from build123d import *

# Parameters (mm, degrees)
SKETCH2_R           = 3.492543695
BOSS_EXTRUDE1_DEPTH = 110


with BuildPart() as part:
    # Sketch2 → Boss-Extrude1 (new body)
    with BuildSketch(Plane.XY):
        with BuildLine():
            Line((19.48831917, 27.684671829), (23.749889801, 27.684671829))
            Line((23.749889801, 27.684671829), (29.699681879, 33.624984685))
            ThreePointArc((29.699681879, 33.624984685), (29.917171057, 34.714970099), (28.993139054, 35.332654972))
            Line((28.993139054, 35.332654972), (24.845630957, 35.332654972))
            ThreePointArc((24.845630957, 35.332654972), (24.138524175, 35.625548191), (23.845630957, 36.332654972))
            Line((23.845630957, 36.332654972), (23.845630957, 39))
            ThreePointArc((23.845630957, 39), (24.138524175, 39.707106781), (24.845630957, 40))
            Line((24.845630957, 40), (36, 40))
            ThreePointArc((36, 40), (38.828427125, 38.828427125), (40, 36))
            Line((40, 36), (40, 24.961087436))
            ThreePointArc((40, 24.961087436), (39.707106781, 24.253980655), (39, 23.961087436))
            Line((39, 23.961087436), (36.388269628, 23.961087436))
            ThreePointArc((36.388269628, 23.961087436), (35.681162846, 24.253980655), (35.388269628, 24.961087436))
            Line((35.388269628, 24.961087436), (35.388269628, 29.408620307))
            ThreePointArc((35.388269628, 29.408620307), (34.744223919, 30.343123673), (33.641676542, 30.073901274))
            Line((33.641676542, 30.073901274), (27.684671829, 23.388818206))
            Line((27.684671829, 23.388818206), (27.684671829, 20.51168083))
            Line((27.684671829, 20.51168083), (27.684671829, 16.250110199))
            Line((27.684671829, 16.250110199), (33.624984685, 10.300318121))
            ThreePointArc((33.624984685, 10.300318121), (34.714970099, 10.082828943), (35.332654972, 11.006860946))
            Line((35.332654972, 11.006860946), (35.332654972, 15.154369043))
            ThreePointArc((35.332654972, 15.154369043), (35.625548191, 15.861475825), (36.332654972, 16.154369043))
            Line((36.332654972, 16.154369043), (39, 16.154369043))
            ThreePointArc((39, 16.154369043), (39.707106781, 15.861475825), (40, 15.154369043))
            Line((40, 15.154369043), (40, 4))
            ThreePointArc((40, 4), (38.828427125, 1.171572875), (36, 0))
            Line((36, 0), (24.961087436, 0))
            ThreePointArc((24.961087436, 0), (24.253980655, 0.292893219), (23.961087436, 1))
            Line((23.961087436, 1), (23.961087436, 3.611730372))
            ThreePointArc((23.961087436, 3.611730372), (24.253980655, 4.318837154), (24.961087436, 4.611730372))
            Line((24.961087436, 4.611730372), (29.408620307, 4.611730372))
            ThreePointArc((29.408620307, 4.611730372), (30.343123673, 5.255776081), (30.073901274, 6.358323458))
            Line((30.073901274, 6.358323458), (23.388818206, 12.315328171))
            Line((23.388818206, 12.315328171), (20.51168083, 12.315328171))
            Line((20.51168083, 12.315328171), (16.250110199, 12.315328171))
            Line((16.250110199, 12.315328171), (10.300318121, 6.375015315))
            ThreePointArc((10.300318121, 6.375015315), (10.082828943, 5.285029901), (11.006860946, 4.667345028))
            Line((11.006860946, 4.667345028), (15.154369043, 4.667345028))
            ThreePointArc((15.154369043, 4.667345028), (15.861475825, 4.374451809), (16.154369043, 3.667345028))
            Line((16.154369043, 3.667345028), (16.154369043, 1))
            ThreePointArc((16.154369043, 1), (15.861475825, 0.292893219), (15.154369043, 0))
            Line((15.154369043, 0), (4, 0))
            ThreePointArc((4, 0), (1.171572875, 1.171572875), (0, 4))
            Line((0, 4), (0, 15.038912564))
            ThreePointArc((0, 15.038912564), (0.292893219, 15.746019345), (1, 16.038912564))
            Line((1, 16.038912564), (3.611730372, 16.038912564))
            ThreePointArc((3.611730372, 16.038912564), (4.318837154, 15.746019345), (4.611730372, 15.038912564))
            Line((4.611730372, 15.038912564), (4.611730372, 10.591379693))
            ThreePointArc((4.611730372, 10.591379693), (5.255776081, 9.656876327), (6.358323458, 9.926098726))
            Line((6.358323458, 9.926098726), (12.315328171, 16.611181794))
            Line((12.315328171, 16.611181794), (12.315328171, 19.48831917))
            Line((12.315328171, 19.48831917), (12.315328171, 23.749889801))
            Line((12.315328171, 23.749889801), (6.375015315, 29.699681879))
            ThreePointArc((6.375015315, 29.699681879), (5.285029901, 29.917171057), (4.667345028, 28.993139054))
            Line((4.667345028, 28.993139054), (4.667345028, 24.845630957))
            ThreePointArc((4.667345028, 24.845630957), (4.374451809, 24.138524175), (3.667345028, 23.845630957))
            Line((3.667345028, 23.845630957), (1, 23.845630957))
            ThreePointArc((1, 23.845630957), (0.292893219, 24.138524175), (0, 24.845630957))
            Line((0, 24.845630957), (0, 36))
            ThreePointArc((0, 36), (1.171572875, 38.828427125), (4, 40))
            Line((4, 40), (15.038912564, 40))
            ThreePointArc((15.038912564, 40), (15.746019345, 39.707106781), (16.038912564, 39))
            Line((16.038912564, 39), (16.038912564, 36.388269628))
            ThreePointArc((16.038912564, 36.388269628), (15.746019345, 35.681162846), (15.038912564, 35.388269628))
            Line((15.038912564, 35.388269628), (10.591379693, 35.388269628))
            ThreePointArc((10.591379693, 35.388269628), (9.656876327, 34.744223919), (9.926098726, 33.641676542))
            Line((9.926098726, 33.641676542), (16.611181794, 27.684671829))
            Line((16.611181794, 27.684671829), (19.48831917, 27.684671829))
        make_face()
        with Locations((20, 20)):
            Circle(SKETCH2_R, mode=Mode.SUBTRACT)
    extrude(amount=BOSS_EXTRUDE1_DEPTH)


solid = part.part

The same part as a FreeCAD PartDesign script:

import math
import FreeCAD as App
import Part
import Sketcher

V = App.Vector
Q = App.Units.Quantity

doc = App.newDocument("Part")
params = doc.addObject("Spreadsheet::Sheet", "Params")
for row, (alias, value) in enumerate([
    ("sketch1_radius", "1 mm"),
    ("sketch1_radius2", "4 mm"),
    ("pad1_length", "110 mm"),
], start=1):
    params.set(f"A{row}", alias)
    params.set(f"B{row}", "=" + value)
    params.setAlias(f"B{row}", alias)

body = doc.addObject("PartDesign::Body", "Body")

# Sketch on XY plane
sketch1 = doc.addObject("Sketcher::SketchObject", "Sketch")
body.addObject(sketch1)
sketch1.AttachmentSupport = (doc.XY_Plane, [""])
sketch1.MapMode = "FlatFace"
sketch1.addGeometry([
    Part.LineSegment(V(29.7, 33.6, 0), V(23.7, 27.7, 0)),  # 0
    Part.LineSegment(V(23.7, 27.7, 0), V(16.6, 27.7, 0)),  # 1
    Part.LineSegment(V(16.6, 27.7, 0), V(9.9, 33.6, 0)),  # 2
    Part.ArcOfCircle(Part.Circle(V(10.6, 34.4, 0), V(0, 0, 1), 1), math.radians(90), math.radians(228)),  # 3
    Part.LineSegment(V(10.6, 35.4, 0), V(15, 35.4, 0)),  # 4
    Part.ArcOfCircle(Part.Circle(V(15, 36.4, 0), V(0, 0, 1), 1), math.radians(-90), math.radians(0)),  # 5
    Part.LineSegment(V(16, 36.4, 0), V(16, 39, 0)),  # 6
    Part.ArcOfCircle(Part.Circle(V(15, 39, 0), V(0, 0, 1), 1), math.radians(0), math.radians(90)),  # 7
    Part.LineSegment(V(15, 40, 0), V(4, 40, 0)),  # 8
    Part.ArcOfCircle(Part.Circle(V(4, 36, 0), V(0, 0, 1), 4), math.radians(90), math.radians(180)),  # 9
    Part.LineSegment(V(0, 36, 0), V(0, 24.8, 0)),  # 10
    Part.ArcOfCircle(Part.Circle(V(1, 24.8, 0), V(0, 0, 1), 1), math.radians(180), math.radians(270)),  # 11
    Part.LineSegment(V(1, 23.8, 0), V(3.7, 23.8, 0)),  # 12
    Part.ArcOfCircle(Part.Circle(V(3.7, 24.8, 0), V(0, 0, 1), 1), math.radians(-90), math.radians(0)),  # 13
    Part.LineSegment(V(4.7, 24.8, 0), V(4.7, 29, 0)),  # 14
    Part.ArcOfCircle(Part.Circle(V(5.7, 29, 0), V(0, 0, 1), 1), math.radians(45), math.radians(180)),  # 15
    Part.LineSegment(V(6.4, 29.7, 0), V(12.3, 23.7, 0)),  # 16
    Part.LineSegment(V(12.3, 23.7, 0), V(12.3, 16.6, 0)),  # 17
    Part.LineSegment(V(12.3, 16.6, 0), V(6.4, 9.9, 0)),  # 18
    Part.ArcOfCircle(Part.Circle(V(5.6, 10.6, 0), V(0, 0, 1), 1), math.radians(-180), math.radians(-42)),  # 19
    Part.LineSegment(V(4.6, 10.6, 0), V(4.6, 15, 0)),  # 20
    Part.ArcOfCircle(Part.Circle(V(3.6, 15, 0), V(0, 0, 1), 1), math.radians(0), math.radians(90)),  # 21
    Part.LineSegment(V(3.6, 16, 0), V(1, 16, 0)),  # 22
    Part.ArcOfCircle(Part.Circle(V(1, 15, 0), V(0, 0, 1), 1), math.radians(90), math.radians(180)),  # 23
    Part.LineSegment(V(0, 15, 0), V(0, 4, 0)),  # 24
    Part.ArcOfCircle(Part.Circle(V(4, 4, 0), V(0, 0, 1), 4), math.radians(180), math.radians(270)),  # 25
    Part.LineSegment(V(4, 0, 0), V(15.2, 0, 0)),  # 26
    Part.ArcOfCircle(Part.Circle(V(15.2, 1, 0), V(0, 0, 1), 1), math.radians(-90), math.radians(0)),  # 27
    Part.LineSegment(V(16.2, 1, 0), V(16.2, 3.7, 0)),  # 28
    Part.ArcOfCircle(Part.Circle(V(15.2, 3.7, 0), V(0, 0, 1), 1), math.radians(0), math.radians(90)),  # 29
    Part.LineSegment(V(15.2, 4.7, 0), V(11, 4.7, 0)),  # 30
    Part.ArcOfCircle(Part.Circle(V(11, 5.7, 0), V(0, 0, 1), 1), math.radians(135), math.radians(270)),  # 31
    Part.LineSegment(V(10.3, 6.4, 0), V(16.3, 12.3, 0)),  # 32
    Part.LineSegment(V(16.3, 12.3, 0), V(23.4, 12.3, 0)),  # 33
    Part.LineSegment(V(23.4, 12.3, 0), V(30.1, 6.4, 0)),  # 34
    Part.ArcOfCircle(Part.Circle(V(29.4, 5.6, 0), V(0, 0, 1), 1), math.radians(-90), math.radians(48)),  # 35
    Part.LineSegment(V(29.4, 4.6, 0), V(25, 4.6, 0)),  # 36
    Part.ArcOfCircle(Part.Circle(V(25, 3.6, 0), V(0, 0, 1), 1), math.radians(90), math.radians(180)),  # 37
    Part.LineSegment(V(24, 3.6, 0), V(24, 1, 0)),  # 38
    Part.ArcOfCircle(Part.Circle(V(25, 1, 0), V(0, 0, 1), 1), math.radians(-180), math.radians(-90)),  # 39
    Part.LineSegment(V(25, 0, 0), V(36, 0, 0)),  # 40
    Part.ArcOfCircle(Part.Circle(V(36, 4, 0), V(0, 0, 1), 4), math.radians(-90), math.radians(0)),  # 41
    Part.LineSegment(V(40, 4, 0), V(40, 15.2, 0)),  # 42
    Part.ArcOfCircle(Part.Circle(V(39, 15.2, 0), V(0, 0, 1), 1), math.radians(0), math.radians(90)),  # 43
    Part.LineSegment(V(39, 16.2, 0), V(36.3, 16.2, 0)),  # 44
    Part.ArcOfCircle(Part.Circle(V(36.3, 15.2, 0), V(0, 0, 1), 1), math.radians(90), math.radians(180)),  # 45
    Part.LineSegment(V(35.3, 15.2, 0), V(35.3, 11, 0)),  # 46
    Part.ArcOfCircle(Part.Circle(V(34.3, 11, 0), V(0, 0, 1), 1), math.radians(-135), math.radians(0)),  # 47
    Part.LineSegment(V(33.6, 10.3, 0), V(27.7, 16.3, 0)),  # 48
    Part.LineSegment(V(27.7, 16.3, 0), V(27.7, 23.4, 0)),  # 49
    Part.LineSegment(V(27.7, 23.4, 0), V(33.6, 30.1, 0)),  # 50
    Part.ArcOfCircle(Part.Circle(V(34.4, 29.4, 0), V(0, 0, 1), 1), math.radians(0), math.radians(138)),  # 51
    Part.LineSegment(V(35.4, 29.4, 0), V(35.4, 25, 0)),  # 52
    Part.ArcOfCircle(Part.Circle(V(36.4, 25, 0), V(0, 0, 1), 1), math.radians(180), math.radians(270)),  # 53
    Part.LineSegment(V(36.4, 24, 0), V(39, 24, 0)),  # 54
    Part.ArcOfCircle(Part.Circle(V(39, 25, 0), V(0, 0, 1), 1), math.radians(-90), math.radians(0)),  # 55
    Part.LineSegment(V(40, 25, 0), V(40, 36, 0)),  # 56
    Part.ArcOfCircle(Part.Circle(V(36, 36, 0), V(0, 0, 1), 4), math.radians(0), math.radians(90)),  # 57
    Part.LineSegment(V(36, 40, 0), V(24.8, 40, 0)),  # 58
    Part.ArcOfCircle(Part.Circle(V(24.8, 39, 0), V(0, 0, 1), 1), math.radians(90), math.radians(180)),  # 59
    Part.LineSegment(V(23.8, 39, 0), V(23.8, 36.3, 0)),  # 60
    Part.ArcOfCircle(Part.Circle(V(24.8, 36.3, 0), V(0, 0, 1), 1), math.radians(180), math.radians(270)),  # 61
    Part.LineSegment(V(24.8, 35.3, 0), V(29, 35.3, 0)),  # 62
    Part.ArcOfCircle(Part.Circle(V(29, 34.3, 0), V(0, 0, 1), 1), math.radians(-45), math.radians(90)),  # 63
    Part.Circle(V(20, 20, 0), V(0, 0, 1), 3.5),  # 64
], False)
sketch1.addConstraint([
    Sketcher.Constraint("Coincident", 0, 2, 1, 1),
    Sketcher.Constraint("Coincident", 1, 2, 2, 1),
    Sketcher.Constraint("Tangent", 2, 2, 3, 2),
    Sketcher.Constraint("Tangent", 3, 1, 4, 1),
    Sketcher.Constraint("Tangent", 4, 2, 5, 1),
    Sketcher.Constraint("Tangent", 5, 2, 6, 1),
    Sketcher.Constraint("Tangent", 6, 2, 7, 1),
    Sketcher.Constraint("Tangent", 7, 2, 8, 1),
    Sketcher.Constraint("Tangent", 8, 2, 9, 1),
    Sketcher.Constraint("Tangent", 9, 2, 10, 1),
    Sketcher.Constraint("Tangent", 10, 2, 11, 1),
    Sketcher.Constraint("Tangent", 11, 2, 12, 1),
    Sketcher.Constraint("Tangent", 12, 2, 13, 1),
    Sketcher.Constraint("Tangent", 13, 2, 14, 1),
    Sketcher.Constraint("Tangent", 14, 2, 15, 2),
    Sketcher.Constraint("Tangent", 15, 1, 16, 1),
    Sketcher.Constraint("Coincident", 16, 2, 17, 1),
    Sketcher.Constraint("Coincident", 17, 2, 18, 1),
    Sketcher.Constraint("Tangent", 18, 2, 19, 2),
    Sketcher.Constraint("Tangent", 19, 1, 20, 1),
    Sketcher.Constraint("Tangent", 20, 2, 21, 1),
    Sketcher.Constraint("Tangent", 21, 2, 22, 1),
    Sketcher.Constraint("Tangent", 22, 2, 23, 1),
    Sketcher.Constraint("Tangent", 23, 2, 24, 1),
    Sketcher.Constraint("Tangent", 24, 2, 25, 1),
    Sketcher.Constraint("Tangent", 25, 2, 26, 1),
    Sketcher.Constraint("Tangent", 26, 2, 27, 1),
    Sketcher.Constraint("Tangent", 27, 2, 28, 1),
    Sketcher.Constraint("Tangent", 28, 2, 29, 1),
    Sketcher.Constraint("Tangent", 29, 2, 30, 1),
    Sketcher.Constraint("Tangent", 30, 2, 31, 2),
    Sketcher.Constraint("Tangent", 31, 1, 32, 1),
    Sketcher.Constraint("Coincident", 32, 2, 33, 1),
    Sketcher.Constraint("Coincident", 33, 2, 34, 1),
    Sketcher.Constraint("Tangent", 34, 2, 35, 2),
    Sketcher.Constraint("Tangent", 35, 1, 36, 1),
    Sketcher.Constraint("Tangent", 36, 2, 37, 1),
    Sketcher.Constraint("Tangent", 37, 2, 38, 1),
    Sketcher.Constraint("Tangent", 38, 2, 39, 1),
    Sketcher.Constraint("Tangent", 39, 2, 40, 1),
    Sketcher.Constraint("Tangent", 40, 2, 41, 1),
    Sketcher.Constraint("Tangent", 41, 2, 42, 1),
    Sketcher.Constraint("Tangent", 42, 2, 43, 1),
    Sketcher.Constraint("Tangent", 43, 2, 44, 1),
    Sketcher.Constraint("Tangent", 44, 2, 45, 1),
    Sketcher.Constraint("Tangent", 45, 2, 46, 1),
    Sketcher.Constraint("Tangent", 46, 2, 47, 2),
    Sketcher.Constraint("Tangent", 47, 1, 48, 1),
    Sketcher.Constraint("Coincident", 48, 2, 49, 1),
    Sketcher.Constraint("Coincident", 49, 2, 50, 1),
    Sketcher.Constraint("Tangent", 50, 2, 51, 2),
    Sketcher.Constraint("Tangent", 51, 1, 52, 1),
    Sketcher.Constraint("Tangent", 52, 2, 53, 1),
    Sketcher.Constraint("Tangent", 53, 2, 54, 1),
    Sketcher.Constraint("Tangent", 54, 2, 55, 1),
    Sketcher.Constraint("Tangent", 55, 2, 56, 1),
    Sketcher.Constraint("Tangent", 56, 2, 57, 1),
    Sketcher.Constraint("Tangent", 57, 2, 58, 1),
    Sketcher.Constraint("Tangent", 58, 2, 59, 1),
    Sketcher.Constraint("Tangent", 59, 2, 60, 1),
    Sketcher.Constraint("Tangent", 60, 2, 61, 1),
    Sketcher.Constraint("Tangent", 61, 2, 62, 1),
    Sketcher.Constraint("Tangent", 62, 2, 63, 2),
    Sketcher.Constraint("Tangent", 63, 1, 0, 1),
    Sketcher.Constraint("Horizontal", 1),
    Sketcher.Constraint("Horizontal", 4),
    Sketcher.Constraint("Vertical", 6),
    Sketcher.Constraint("Horizontal", 8),
    Sketcher.Constraint("Vertical", 10),
    Sketcher.Constraint("Horizontal", 12),
    Sketcher.Constraint("Vertical", 14),
    Sketcher.Constraint("Vertical", 17),
    Sketcher.Constraint("Vertical", 20),
    Sketcher.Constraint("Horizontal", 22),
    Sketcher.Constraint("Vertical", 24),
    Sketcher.Constraint("Horizontal", 26),
    Sketcher.Constraint("Vertical", 28),
    Sketcher.Constraint("Horizontal", 30),
    Sketcher.Constraint("Horizontal", 33),
    Sketcher.Constraint("Horizontal", 36),
    Sketcher.Constraint("Vertical", 38),
    Sketcher.Constraint("Horizontal", 40),
    Sketcher.Constraint("Vertical", 42),
    Sketcher.Constraint("Horizontal", 44),
    Sketcher.Constraint("Vertical", 46),
    Sketcher.Constraint("Vertical", 49),
    Sketcher.Constraint("Vertical", 52),
    Sketcher.Constraint("Horizontal", 54),
    Sketcher.Constraint("Vertical", 56),
    Sketcher.Constraint("Horizontal", 58),
    Sketcher.Constraint("Vertical", 60),
    Sketcher.Constraint("Horizontal", 62),
    Sketcher.Constraint("Equal", 3, 5),
    Sketcher.Constraint("Equal", 5, 7),
    Sketcher.Constraint("Equal", 7, 11),
    Sketcher.Constraint("Equal", 11, 13),
    Sketcher.Constraint("Equal", 13, 15),
    Sketcher.Constraint("Equal", 15, 19),
    Sketcher.Constraint("Equal", 19, 21),
    Sketcher.Constraint("Equal", 21, 23),
    Sketcher.Constraint("Equal", 9, 25),
    Sketcher.Constraint("Equal", 23, 27),
    Sketcher.Constraint("Equal", 27, 29),
    Sketcher.Constraint("Equal", 29, 31),
    Sketcher.Constraint("Equal", 31, 35),
    Sketcher.Constraint("Equal", 35, 37),
    Sketcher.Constraint("Equal", 37, 39),
    Sketcher.Constraint("Equal", 25, 41),
    Sketcher.Constraint("Equal", 39, 43),
    Sketcher.Constraint("Equal", 43, 45),
    Sketcher.Constraint("Equal", 45, 47),
    Sketcher.Constraint("Equal", 47, 51),
    Sketcher.Constraint("Equal", 51, 53),
    Sketcher.Constraint("Equal", 53, 55),
    Sketcher.Constraint("Equal", 41, 57),
    Sketcher.Constraint("Equal", 55, 59),
    Sketcher.Constraint("Equal", 59, 61),
    Sketcher.Constraint("Equal", 61, 63),
    Sketcher.Constraint("PointOnObject", 9, 2, -2),
    Sketcher.Constraint("PointOnObject", 23, 2, -2),
    Sketcher.Constraint("PointOnObject", 25, 2, -1),
    Sketcher.Constraint("PointOnObject", 39, 2, -1),
    Sketcher.Constraint("Perpendicular", 0, 16),
    Sketcher.Constraint("Perpendicular", 2, 18),
    Sketcher.Constraint("Perpendicular", 16, 32),
    Sketcher.Constraint("Perpendicular", 18, 34),
    Sketcher.Constraint("Perpendicular", 32, 48),
    Sketcher.Constraint("Perpendicular", 34, 50),
    Sketcher.Constraint("Horizontal", 9, 3, 57, 3),
    Sketcher.Constraint("Vertical", 43, 3, 55, 3),
    Sketcher.Constraint("Equal", 1, 33),
    Sketcher.Constraint("Equal", 4, 36),
    Sketcher.Constraint("Equal", 8, 40),
    Sketcher.Constraint("Equal", 12, 44),
    Sketcher.Constraint("Equal", 22, 54),
    Sketcher.Constraint("Equal", 26, 58),
    Sketcher.Constraint("Equal", 30, 62),
    Sketcher.Constraint("Equal", 54, 6),
    Sketcher.Constraint("Equal", 58, 10),
    Sketcher.Constraint("Equal", 62, 14),
    Sketcher.Constraint("Equal", 33, 17),
    Sketcher.Constraint("Equal", 36, 20),
    Sketcher.Constraint("Equal", 40, 24),
    Sketcher.Constraint("Equal", 44, 28),
    Sketcher.Constraint("Equal", 6, 38),
    Sketcher.Constraint("Equal", 10, 42),
    Sketcher.Constraint("Equal", 14, 46),
    Sketcher.Constraint("Equal", 17, 49),
    Sketcher.Constraint("Equal", 20, 52),
    Sketcher.Constraint("Equal", 24, 56),
    Sketcher.Constraint("Equal", 28, 60),
    Sketcher.Constraint("Equal", 0, 16),
    Sketcher.Constraint("Radius", 3, Q("1 mm")),
    Sketcher.Constraint("Radius", 9, Q("4 mm")),
    Sketcher.Constraint("DistanceY", -1, 1, 7, 3, Q("39 mm")),
    Sketcher.Constraint("DistanceX", -1, 1, 64, 3, Q("20 mm")),
    Sketcher.Constraint("DistanceY", -1, 1, 64, 3, Q("20 mm")),
    Sketcher.Constraint("Diameter", 64, Q("6.985087 mm")),
    Sketcher.Constraint("DistanceX", 1, 2, 1, 1, Q("7.138708 mm")),
    Sketcher.Constraint("DistanceX", 22, 2, 22, 1, Q("2.61173 mm")),
    Sketcher.Constraint("DistanceX", 26, 1, 26, 2, Q("11.154369 mm")),
    Sketcher.Constraint("DistanceX", 30, 2, 30, 1, Q("4.147508 mm")),
    Sketcher.Constraint("DistanceX", -1, 1, 2, 2, Q("9.926099 mm")),
    Sketcher.Constraint("Distance", 2, Q("8.954119 mm")),
    Sketcher.Constraint("DistanceX", 4, 1, 4, 2, Q("4.447533 mm")),
    Sketcher.Constraint("DistanceX", 8, 2, 8, 1, Q("11.038913 mm")),
    Sketcher.Constraint("DistanceX", 12, 1, 12, 2, Q("2.667345 mm")),
])
sketch1.setExpression("Constraints[152]", "Params.sketch1_radius")
sketch1.setExpression("Constraints[153]", "Params.sketch1_radius2")
pad1 = doc.addObject("PartDesign::Pad", "Pad")
body.addObject(pad1)
pad1.Profile = sketch1
pad1.setExpression("Length", "Params.pad1_length")

doc.recompute()
